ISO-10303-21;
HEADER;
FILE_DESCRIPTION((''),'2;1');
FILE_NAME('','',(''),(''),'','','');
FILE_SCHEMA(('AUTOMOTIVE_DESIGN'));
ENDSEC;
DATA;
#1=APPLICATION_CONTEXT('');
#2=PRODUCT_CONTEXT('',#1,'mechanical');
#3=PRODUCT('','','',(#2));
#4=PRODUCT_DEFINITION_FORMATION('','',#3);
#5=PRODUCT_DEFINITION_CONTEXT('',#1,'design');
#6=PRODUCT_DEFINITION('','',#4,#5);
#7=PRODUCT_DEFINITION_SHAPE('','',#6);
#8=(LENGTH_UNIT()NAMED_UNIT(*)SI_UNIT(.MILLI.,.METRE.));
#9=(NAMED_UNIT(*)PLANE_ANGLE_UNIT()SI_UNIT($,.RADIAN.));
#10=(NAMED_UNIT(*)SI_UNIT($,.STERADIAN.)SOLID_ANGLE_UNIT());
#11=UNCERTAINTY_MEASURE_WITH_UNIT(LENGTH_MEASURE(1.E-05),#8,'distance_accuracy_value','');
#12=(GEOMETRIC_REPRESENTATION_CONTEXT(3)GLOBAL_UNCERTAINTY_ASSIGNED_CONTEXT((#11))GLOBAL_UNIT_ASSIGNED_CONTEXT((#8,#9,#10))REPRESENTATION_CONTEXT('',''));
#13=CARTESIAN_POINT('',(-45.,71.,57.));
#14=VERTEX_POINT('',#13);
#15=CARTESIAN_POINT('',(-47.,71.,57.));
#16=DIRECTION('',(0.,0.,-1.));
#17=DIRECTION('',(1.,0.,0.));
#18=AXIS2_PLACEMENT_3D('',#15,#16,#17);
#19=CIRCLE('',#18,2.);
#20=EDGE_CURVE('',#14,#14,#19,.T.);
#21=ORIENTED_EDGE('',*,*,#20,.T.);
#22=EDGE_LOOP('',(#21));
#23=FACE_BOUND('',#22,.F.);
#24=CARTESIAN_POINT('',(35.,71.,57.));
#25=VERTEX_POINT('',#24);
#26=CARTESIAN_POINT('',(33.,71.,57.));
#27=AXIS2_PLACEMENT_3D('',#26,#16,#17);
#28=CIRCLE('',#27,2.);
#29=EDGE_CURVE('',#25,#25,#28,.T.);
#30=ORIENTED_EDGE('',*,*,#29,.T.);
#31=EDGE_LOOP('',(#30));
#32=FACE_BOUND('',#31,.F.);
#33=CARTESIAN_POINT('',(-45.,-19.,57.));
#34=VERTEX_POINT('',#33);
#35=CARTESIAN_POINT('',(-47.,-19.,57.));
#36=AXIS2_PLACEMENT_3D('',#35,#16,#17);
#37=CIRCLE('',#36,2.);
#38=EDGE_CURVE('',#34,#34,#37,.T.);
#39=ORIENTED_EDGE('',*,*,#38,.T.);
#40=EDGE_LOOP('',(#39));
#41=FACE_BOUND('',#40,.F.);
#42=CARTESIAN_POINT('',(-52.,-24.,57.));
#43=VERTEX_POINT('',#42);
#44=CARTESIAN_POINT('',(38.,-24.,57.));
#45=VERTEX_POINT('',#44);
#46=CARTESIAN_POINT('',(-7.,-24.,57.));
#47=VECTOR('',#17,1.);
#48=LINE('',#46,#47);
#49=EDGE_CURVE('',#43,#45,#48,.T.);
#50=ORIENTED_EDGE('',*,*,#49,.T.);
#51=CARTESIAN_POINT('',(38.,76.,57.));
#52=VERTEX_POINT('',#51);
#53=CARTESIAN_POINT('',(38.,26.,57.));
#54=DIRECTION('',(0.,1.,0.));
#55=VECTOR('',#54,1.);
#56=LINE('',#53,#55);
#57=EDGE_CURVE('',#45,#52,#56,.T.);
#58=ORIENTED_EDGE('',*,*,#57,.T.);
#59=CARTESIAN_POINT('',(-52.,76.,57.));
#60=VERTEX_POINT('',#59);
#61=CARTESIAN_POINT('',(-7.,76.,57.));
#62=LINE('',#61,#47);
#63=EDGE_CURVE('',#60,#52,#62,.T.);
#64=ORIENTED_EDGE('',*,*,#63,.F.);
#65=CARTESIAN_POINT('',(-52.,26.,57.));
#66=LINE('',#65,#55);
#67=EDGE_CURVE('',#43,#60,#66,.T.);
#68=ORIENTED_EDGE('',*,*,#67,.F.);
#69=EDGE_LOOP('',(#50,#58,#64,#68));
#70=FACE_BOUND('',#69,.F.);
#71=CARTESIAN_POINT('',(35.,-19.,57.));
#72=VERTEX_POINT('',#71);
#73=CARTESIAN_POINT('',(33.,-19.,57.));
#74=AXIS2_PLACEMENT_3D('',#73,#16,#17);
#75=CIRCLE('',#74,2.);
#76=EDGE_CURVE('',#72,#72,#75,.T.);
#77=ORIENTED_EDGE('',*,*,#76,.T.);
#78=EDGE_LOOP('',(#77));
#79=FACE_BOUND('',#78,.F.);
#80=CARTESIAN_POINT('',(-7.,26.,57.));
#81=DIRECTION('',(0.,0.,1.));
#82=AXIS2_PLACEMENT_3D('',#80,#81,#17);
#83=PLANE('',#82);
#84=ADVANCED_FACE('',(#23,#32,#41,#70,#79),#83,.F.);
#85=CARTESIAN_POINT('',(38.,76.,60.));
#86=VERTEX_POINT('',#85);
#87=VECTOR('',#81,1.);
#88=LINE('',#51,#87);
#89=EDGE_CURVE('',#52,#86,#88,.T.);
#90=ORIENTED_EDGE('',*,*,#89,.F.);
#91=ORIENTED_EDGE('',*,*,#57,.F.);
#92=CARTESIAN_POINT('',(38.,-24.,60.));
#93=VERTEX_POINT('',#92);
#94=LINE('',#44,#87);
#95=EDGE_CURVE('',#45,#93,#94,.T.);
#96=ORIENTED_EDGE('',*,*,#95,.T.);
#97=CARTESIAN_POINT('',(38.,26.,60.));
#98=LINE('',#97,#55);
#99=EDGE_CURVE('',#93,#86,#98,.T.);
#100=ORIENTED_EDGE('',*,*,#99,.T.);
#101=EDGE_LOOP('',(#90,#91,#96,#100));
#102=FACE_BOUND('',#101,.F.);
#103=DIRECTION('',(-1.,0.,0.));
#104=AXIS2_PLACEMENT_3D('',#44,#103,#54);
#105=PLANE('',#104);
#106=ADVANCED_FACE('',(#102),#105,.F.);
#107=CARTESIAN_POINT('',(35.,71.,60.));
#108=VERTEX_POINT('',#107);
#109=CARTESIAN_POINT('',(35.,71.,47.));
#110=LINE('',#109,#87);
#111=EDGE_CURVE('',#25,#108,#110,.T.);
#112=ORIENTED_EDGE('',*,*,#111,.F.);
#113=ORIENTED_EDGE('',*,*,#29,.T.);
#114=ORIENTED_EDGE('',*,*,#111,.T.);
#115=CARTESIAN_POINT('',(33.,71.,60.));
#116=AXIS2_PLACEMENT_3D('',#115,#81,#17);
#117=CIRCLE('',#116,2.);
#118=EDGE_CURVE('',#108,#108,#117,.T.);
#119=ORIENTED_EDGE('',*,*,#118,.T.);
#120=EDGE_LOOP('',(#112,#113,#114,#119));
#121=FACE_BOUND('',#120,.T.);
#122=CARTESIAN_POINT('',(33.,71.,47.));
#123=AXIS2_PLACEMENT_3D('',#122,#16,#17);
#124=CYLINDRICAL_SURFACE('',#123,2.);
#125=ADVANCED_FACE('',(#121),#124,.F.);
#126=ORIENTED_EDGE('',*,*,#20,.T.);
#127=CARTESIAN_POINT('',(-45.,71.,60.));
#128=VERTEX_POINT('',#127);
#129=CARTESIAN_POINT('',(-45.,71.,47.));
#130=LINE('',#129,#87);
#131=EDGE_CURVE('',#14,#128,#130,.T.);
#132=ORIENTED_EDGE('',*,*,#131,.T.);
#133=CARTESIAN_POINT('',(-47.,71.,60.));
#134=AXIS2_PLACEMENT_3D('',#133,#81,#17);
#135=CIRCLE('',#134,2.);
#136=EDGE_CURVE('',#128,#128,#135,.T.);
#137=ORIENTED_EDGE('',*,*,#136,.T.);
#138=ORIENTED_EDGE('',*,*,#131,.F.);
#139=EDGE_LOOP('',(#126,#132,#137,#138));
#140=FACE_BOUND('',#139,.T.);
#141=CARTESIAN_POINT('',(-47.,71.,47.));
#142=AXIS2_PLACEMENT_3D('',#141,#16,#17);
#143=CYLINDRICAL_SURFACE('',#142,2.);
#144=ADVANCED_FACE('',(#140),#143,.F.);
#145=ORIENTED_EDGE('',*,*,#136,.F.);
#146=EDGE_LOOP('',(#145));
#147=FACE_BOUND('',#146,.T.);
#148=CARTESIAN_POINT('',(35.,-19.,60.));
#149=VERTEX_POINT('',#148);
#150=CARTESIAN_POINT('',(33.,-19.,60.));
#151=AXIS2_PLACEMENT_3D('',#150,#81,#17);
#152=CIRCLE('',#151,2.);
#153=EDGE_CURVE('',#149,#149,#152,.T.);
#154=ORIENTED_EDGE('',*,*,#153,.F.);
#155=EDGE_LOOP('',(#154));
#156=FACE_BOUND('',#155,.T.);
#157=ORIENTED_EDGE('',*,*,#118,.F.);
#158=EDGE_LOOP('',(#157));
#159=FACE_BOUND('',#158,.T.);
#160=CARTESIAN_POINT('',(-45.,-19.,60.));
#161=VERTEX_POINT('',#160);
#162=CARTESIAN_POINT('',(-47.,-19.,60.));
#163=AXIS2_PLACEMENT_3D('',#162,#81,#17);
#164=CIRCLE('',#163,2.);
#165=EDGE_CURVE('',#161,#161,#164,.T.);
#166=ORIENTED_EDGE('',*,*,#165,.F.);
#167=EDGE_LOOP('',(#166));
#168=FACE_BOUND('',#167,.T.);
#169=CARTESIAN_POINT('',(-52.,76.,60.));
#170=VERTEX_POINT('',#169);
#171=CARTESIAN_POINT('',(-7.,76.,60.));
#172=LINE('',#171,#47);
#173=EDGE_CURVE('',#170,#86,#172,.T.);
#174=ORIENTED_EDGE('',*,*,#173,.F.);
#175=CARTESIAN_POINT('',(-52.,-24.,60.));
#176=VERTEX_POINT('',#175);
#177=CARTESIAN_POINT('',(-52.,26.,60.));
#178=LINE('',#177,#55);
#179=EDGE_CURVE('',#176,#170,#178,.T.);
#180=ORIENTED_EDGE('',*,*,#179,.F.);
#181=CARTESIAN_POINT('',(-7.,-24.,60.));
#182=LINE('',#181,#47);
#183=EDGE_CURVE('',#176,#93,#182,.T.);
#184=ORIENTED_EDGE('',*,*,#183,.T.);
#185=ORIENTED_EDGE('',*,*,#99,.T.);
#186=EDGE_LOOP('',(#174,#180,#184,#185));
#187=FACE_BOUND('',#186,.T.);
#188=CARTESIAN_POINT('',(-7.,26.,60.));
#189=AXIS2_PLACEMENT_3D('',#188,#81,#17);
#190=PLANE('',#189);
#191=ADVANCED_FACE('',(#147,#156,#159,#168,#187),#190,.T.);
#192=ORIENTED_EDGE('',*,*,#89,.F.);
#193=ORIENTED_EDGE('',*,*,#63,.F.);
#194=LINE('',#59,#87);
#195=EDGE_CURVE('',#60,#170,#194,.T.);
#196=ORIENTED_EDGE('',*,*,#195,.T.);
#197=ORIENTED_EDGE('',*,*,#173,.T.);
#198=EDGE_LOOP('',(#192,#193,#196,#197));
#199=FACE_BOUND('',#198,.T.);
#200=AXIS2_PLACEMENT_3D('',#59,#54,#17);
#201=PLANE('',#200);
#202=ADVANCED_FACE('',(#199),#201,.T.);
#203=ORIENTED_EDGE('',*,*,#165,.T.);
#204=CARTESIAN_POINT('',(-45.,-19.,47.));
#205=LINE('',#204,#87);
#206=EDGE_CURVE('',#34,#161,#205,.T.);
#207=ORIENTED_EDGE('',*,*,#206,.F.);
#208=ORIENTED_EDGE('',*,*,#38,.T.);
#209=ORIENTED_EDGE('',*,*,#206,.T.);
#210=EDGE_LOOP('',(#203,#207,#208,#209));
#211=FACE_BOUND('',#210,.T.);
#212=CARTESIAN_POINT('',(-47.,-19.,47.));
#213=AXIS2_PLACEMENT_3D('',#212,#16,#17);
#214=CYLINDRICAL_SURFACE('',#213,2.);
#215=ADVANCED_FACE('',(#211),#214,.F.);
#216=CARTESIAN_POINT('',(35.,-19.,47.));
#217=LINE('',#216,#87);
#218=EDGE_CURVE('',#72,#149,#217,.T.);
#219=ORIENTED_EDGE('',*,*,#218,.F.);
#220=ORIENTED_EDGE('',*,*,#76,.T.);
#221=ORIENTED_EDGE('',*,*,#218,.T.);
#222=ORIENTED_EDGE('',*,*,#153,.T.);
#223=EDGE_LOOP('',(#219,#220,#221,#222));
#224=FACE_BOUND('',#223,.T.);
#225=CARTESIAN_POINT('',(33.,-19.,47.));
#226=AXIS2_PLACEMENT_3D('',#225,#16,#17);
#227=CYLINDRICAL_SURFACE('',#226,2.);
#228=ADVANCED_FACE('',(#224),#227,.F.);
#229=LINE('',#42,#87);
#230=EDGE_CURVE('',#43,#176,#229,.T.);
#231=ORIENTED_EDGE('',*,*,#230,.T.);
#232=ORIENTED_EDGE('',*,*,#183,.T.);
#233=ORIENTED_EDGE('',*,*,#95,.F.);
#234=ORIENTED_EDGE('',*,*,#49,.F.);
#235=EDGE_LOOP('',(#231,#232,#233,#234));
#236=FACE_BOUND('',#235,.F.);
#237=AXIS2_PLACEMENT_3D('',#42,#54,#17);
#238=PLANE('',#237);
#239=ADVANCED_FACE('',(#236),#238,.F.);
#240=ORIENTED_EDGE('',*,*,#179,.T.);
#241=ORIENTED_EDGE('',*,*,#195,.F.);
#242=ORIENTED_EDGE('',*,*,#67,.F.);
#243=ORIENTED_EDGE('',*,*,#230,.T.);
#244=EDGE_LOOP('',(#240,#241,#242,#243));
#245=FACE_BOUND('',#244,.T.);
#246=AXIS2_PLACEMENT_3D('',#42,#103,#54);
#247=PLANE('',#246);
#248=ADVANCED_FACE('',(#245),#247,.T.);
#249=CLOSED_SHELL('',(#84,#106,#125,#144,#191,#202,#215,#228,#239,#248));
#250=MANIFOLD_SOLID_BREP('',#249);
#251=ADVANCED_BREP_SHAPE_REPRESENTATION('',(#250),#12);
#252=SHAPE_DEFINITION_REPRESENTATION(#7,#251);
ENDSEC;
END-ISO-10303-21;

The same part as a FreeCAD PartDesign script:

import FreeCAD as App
import Part
import Sketcher
from FreeCAD import Vector
Q = App.Units.Quantity


def add_polygon(sketch, points):
    """Adds a closed chain of lines whose ends are joined by coincident constraints."""
    first, n = sketch.GeometryCount, len(points)
    for a, b in zip(points, points[1:] + points[:1]):
        sketch.addGeometry(Part.LineSegment(App.Vector(*a, 0), App.Vector(*b, 0)), False)
    for i in range(n):
        sketch.addConstraint(Sketcher.Constraint("Coincident", first + i, 2, first + (i + 1) % n, 1))

doc = App.newDocument("Part")
params = doc.addObject("Spreadsheet::Sheet", "Params")
for row, (alias, value) in enumerate([
    ("sketch1_diameter", "4 mm"),
    ("pad1_length", "13 mm"),
    ("sketch2_diameter", "4 mm"),
    ("pad2_length", "13 mm"),
    ("sketch3_diameter", "4 mm"),
    ("pad3_length", "13 mm"),
    ("sketch4_diameter", "4 mm"),
    ("pad4_length", "13 mm"),
    ("sketch5_width", "90 mm"),
    ("sketch5_height", "100 mm"),
    ("pad5_length", "3 mm"),
], start=1):
    params.set(f"A{row}", alias)
    params.set(f"B{row}", "=" + value)
    params.setAlias(f"B{row}", alias)

body = doc.addObject("PartDesign::Body", "Body")

# Sketch on XY plane
sketch1 = body.newObject("Sketcher::SketchObject", "Sketch")
sketch1.AttachmentSupport = (doc.getObject("XY_Plane"), [""])
sketch1.MapMode = "FlatFace"
sketch1.AttachmentOffset = App.Placement(Vector(0, 0, 32), App.Rotation())
sketch1.addGeometry(Part.Circle(Vector(33, 55, 0), Vector(0, 0, 1), 2), False)
sketch1.addConstraint(Sketcher.Constraint("Diameter", 0, Q("4 mm")))
sketch1.addConstraint(Sketcher.Constraint("DistanceX", -1, 1, 0, 3, Q("33 mm")))
sketch1.addConstraint(Sketcher.Constraint("DistanceY", -1, 1, 0, 3, Q("55 mm")))
sketch1.setExpression("Constraints[0]", "Params.sketch1_diameter")
pad1 = body.newObject("PartDesign::Pad", "Pad")
pad1.Profile = sketch1
pad1.setExpression("Length", "Params.pad1_length")
body2 = doc.addObject("PartDesign::Body", "Body001")

# Sketch on XY plane
sketch2 = body2.newObject("Sketcher::SketchObject", "Sketch001")
sketch2.AttachmentSupport = (doc.getObject("XY_Plane001"), [""])
sketch2.MapMode = "FlatFace"
sketch2.AttachmentOffset = App.Placement(Vector(0, 0, 32), App.Rotation())
sketch2.addGeometry(Part.Circle(Vector(-47, 55, 0), Vector(0, 0, 1), 2), False)
sketch2.addConstraint(Sketcher.Constraint("Diameter", 0, Q("4 mm")))
sketch2.addConstraint(Sketcher.Constraint("DistanceX", 0, 3, -1, 1, Q("47 mm")))
sketch2.addConstraint(Sketcher.Constraint("DistanceY", -1, 1, 0, 3, Q("55 mm")))
sketch2.setExpression("Constraints[0]", "Params.sketch2_diameter")
pad2 = body2.newObject("PartDesign::Pad", "Pad001")
pad2.Profile = sketch2
pad2.setExpression("Length", "Params.pad2_length")
body3 = doc.addObject("PartDesign::Body", "Body002")

# Sketch on XY plane
sketch3 = body3.newObject("Sketcher::SketchObject", "Sketch002")
sketch3.AttachmentSupport = (doc.getObject("XY_Plane002"), [""])
sketch3.MapMode = "FlatFace"
sketch3.AttachmentOffset = App.Placement(Vector(0, 0, 32), App.Rotation())
sketch3.addGeometry(Part.Circle(Vector(33, -35, 0), Vector(0, 0, 1), 2), False)
sketch3.addConstraint(Sketcher.Constraint("Diameter", 0, Q("4 mm")))
sketch3.addConstraint(Sketcher.Constraint("DistanceX", -1, 1, 0, 3, Q("33 mm")))
sketch3.addConstraint(Sketcher.Constraint("DistanceY", 0, 3, -1, 1, Q("35 mm")))
sketch3.setExpression("Constraints[0]", "Params.sketch3_diameter")
pad3 = body3.newObject("PartDesign::Pad", "Pad002")
pad3.Profile = sketch3
pad3.setExpression("Length", "Params.pad3_length")
body4 = doc.addObject("PartDesign::Body", "Body003")

# Sketch on XY plane
sketch4 = body4.newObject("Sketcher::SketchObject", "Sketch003")
sketch4.AttachmentSupport = (doc.getObject("XY_Plane003"), [""])
sketch4.MapMode = "FlatFace"
sketch4.AttachmentOffset = App.Placement(Vector(0, 0, 32), App.Rotation())
sketch4.addGeometry(Part.Circle(Vector(-47, -35, 0), Vector(0, 0, 1), 2), False)
sketch4.addConstraint(Sketcher.Constraint("Diameter", 0, Q("4 mm")))
sketch4.addConstraint(Sketcher.Constraint("DistanceX", 0, 3, -1, 1, Q("47 mm")))
sketch4.addConstraint(Sketcher.Constraint("DistanceY", 0, 3, -1, 1, Q("35 mm")))
sketch4.setExpression("Constraints[0]", "Params.sketch4_diameter")
pad4 = body4.newObject("PartDesign::Pad", "Pad003")
pad4.Profile = sketch4
pad4.setExpression("Length", "Params.pad4_length")
body5 = doc.addObject("PartDesign::Body", "Body004")

# Sketch on XY plane
sketch5 = body5.newObject("Sketcher::SketchObject", "Sketch004")
sketch5.AttachmentSupport = (doc.getObject("XY_Plane004"), [""])
sketch5.MapMode = "FlatFace"
sketch5.AttachmentOffset = App.Placement(Vector(0, 0, 42), App.Rotation())
add_polygon(sketch5, [(-52, 60), (-52, -40), (38, -40), (38, 60)])  # lines 0-3
sketch5.addConstraint(Sketcher.Constraint("Vertical", 0))
sketch5.addConstraint(Sketcher.Constraint("Horizontal", 1))
sketch5.addConstraint(Sketcher.Constraint("Vertical", 2))
sketch5.addConstraint(Sketcher.Constraint("Horizontal", 3))
sketch5.addConstraint(Sketcher.Constraint("DistanceX", 1, 1, 1, 2, Q("90 mm")))
sketch5.addConstraint(Sketcher.Constraint("DistanceY", 0, 2, 0, 1, Q("100 mm")))
sketch5.addConstraint(Sketcher.Constraint("DistanceX", 0, 2, -1, 1, Q("52 mm")))
sketch5.addConstraint(Sketcher.Constraint("DistanceY", 0, 2, -1, 1, Q("40 mm")))
sketch5.setExpression("Constraints[8]", "Params.sketch5_width")
sketch5.setExpression("Constraints[9]", "Params.sketch5_height")
pad5 = body5.newObject("PartDesign::Pad", "Pad004")
pad5.Profile = sketch5
pad5.setExpression("Length", "Params.pad5_length")
doc.recompute()

boolean = body5.newObject("PartDesign::Boolean", "Boolean")
boolean.Type = "Cut"
boolean.addObjects([body4])
doc.recompute()

boolean2 = body5.newObject("PartDesign::Boolean", "Boolean001")
boolean2.Type = "Cut"
boolean2.addObjects([body3])
doc.recompute()

boolean3 = body5.newObject("PartDesign::Boolean", "Boolean002")
boolean3.Type = "Cut"
boolean3.addObjects([body2])
doc.recompute()

boolean4 = body5.newObject("PartDesign::Boolean", "Boolean003")
boolean4.Type = "Cut"
boolean4.addObjects([body])
body6 = doc.addObject("PartDesign::Body", "Body005")
doc.recompute()

body5.Placement = App.Placement(Vector(0, 16, 15), App.Rotation(Vector(0, 0, 1), 0))
boolean5 = body6.newObject("PartDesign::Boolean", "Boolean004")
boolean5.Type = "Fuse"
boolean5.addObjects([body5])

doc.recompute()
